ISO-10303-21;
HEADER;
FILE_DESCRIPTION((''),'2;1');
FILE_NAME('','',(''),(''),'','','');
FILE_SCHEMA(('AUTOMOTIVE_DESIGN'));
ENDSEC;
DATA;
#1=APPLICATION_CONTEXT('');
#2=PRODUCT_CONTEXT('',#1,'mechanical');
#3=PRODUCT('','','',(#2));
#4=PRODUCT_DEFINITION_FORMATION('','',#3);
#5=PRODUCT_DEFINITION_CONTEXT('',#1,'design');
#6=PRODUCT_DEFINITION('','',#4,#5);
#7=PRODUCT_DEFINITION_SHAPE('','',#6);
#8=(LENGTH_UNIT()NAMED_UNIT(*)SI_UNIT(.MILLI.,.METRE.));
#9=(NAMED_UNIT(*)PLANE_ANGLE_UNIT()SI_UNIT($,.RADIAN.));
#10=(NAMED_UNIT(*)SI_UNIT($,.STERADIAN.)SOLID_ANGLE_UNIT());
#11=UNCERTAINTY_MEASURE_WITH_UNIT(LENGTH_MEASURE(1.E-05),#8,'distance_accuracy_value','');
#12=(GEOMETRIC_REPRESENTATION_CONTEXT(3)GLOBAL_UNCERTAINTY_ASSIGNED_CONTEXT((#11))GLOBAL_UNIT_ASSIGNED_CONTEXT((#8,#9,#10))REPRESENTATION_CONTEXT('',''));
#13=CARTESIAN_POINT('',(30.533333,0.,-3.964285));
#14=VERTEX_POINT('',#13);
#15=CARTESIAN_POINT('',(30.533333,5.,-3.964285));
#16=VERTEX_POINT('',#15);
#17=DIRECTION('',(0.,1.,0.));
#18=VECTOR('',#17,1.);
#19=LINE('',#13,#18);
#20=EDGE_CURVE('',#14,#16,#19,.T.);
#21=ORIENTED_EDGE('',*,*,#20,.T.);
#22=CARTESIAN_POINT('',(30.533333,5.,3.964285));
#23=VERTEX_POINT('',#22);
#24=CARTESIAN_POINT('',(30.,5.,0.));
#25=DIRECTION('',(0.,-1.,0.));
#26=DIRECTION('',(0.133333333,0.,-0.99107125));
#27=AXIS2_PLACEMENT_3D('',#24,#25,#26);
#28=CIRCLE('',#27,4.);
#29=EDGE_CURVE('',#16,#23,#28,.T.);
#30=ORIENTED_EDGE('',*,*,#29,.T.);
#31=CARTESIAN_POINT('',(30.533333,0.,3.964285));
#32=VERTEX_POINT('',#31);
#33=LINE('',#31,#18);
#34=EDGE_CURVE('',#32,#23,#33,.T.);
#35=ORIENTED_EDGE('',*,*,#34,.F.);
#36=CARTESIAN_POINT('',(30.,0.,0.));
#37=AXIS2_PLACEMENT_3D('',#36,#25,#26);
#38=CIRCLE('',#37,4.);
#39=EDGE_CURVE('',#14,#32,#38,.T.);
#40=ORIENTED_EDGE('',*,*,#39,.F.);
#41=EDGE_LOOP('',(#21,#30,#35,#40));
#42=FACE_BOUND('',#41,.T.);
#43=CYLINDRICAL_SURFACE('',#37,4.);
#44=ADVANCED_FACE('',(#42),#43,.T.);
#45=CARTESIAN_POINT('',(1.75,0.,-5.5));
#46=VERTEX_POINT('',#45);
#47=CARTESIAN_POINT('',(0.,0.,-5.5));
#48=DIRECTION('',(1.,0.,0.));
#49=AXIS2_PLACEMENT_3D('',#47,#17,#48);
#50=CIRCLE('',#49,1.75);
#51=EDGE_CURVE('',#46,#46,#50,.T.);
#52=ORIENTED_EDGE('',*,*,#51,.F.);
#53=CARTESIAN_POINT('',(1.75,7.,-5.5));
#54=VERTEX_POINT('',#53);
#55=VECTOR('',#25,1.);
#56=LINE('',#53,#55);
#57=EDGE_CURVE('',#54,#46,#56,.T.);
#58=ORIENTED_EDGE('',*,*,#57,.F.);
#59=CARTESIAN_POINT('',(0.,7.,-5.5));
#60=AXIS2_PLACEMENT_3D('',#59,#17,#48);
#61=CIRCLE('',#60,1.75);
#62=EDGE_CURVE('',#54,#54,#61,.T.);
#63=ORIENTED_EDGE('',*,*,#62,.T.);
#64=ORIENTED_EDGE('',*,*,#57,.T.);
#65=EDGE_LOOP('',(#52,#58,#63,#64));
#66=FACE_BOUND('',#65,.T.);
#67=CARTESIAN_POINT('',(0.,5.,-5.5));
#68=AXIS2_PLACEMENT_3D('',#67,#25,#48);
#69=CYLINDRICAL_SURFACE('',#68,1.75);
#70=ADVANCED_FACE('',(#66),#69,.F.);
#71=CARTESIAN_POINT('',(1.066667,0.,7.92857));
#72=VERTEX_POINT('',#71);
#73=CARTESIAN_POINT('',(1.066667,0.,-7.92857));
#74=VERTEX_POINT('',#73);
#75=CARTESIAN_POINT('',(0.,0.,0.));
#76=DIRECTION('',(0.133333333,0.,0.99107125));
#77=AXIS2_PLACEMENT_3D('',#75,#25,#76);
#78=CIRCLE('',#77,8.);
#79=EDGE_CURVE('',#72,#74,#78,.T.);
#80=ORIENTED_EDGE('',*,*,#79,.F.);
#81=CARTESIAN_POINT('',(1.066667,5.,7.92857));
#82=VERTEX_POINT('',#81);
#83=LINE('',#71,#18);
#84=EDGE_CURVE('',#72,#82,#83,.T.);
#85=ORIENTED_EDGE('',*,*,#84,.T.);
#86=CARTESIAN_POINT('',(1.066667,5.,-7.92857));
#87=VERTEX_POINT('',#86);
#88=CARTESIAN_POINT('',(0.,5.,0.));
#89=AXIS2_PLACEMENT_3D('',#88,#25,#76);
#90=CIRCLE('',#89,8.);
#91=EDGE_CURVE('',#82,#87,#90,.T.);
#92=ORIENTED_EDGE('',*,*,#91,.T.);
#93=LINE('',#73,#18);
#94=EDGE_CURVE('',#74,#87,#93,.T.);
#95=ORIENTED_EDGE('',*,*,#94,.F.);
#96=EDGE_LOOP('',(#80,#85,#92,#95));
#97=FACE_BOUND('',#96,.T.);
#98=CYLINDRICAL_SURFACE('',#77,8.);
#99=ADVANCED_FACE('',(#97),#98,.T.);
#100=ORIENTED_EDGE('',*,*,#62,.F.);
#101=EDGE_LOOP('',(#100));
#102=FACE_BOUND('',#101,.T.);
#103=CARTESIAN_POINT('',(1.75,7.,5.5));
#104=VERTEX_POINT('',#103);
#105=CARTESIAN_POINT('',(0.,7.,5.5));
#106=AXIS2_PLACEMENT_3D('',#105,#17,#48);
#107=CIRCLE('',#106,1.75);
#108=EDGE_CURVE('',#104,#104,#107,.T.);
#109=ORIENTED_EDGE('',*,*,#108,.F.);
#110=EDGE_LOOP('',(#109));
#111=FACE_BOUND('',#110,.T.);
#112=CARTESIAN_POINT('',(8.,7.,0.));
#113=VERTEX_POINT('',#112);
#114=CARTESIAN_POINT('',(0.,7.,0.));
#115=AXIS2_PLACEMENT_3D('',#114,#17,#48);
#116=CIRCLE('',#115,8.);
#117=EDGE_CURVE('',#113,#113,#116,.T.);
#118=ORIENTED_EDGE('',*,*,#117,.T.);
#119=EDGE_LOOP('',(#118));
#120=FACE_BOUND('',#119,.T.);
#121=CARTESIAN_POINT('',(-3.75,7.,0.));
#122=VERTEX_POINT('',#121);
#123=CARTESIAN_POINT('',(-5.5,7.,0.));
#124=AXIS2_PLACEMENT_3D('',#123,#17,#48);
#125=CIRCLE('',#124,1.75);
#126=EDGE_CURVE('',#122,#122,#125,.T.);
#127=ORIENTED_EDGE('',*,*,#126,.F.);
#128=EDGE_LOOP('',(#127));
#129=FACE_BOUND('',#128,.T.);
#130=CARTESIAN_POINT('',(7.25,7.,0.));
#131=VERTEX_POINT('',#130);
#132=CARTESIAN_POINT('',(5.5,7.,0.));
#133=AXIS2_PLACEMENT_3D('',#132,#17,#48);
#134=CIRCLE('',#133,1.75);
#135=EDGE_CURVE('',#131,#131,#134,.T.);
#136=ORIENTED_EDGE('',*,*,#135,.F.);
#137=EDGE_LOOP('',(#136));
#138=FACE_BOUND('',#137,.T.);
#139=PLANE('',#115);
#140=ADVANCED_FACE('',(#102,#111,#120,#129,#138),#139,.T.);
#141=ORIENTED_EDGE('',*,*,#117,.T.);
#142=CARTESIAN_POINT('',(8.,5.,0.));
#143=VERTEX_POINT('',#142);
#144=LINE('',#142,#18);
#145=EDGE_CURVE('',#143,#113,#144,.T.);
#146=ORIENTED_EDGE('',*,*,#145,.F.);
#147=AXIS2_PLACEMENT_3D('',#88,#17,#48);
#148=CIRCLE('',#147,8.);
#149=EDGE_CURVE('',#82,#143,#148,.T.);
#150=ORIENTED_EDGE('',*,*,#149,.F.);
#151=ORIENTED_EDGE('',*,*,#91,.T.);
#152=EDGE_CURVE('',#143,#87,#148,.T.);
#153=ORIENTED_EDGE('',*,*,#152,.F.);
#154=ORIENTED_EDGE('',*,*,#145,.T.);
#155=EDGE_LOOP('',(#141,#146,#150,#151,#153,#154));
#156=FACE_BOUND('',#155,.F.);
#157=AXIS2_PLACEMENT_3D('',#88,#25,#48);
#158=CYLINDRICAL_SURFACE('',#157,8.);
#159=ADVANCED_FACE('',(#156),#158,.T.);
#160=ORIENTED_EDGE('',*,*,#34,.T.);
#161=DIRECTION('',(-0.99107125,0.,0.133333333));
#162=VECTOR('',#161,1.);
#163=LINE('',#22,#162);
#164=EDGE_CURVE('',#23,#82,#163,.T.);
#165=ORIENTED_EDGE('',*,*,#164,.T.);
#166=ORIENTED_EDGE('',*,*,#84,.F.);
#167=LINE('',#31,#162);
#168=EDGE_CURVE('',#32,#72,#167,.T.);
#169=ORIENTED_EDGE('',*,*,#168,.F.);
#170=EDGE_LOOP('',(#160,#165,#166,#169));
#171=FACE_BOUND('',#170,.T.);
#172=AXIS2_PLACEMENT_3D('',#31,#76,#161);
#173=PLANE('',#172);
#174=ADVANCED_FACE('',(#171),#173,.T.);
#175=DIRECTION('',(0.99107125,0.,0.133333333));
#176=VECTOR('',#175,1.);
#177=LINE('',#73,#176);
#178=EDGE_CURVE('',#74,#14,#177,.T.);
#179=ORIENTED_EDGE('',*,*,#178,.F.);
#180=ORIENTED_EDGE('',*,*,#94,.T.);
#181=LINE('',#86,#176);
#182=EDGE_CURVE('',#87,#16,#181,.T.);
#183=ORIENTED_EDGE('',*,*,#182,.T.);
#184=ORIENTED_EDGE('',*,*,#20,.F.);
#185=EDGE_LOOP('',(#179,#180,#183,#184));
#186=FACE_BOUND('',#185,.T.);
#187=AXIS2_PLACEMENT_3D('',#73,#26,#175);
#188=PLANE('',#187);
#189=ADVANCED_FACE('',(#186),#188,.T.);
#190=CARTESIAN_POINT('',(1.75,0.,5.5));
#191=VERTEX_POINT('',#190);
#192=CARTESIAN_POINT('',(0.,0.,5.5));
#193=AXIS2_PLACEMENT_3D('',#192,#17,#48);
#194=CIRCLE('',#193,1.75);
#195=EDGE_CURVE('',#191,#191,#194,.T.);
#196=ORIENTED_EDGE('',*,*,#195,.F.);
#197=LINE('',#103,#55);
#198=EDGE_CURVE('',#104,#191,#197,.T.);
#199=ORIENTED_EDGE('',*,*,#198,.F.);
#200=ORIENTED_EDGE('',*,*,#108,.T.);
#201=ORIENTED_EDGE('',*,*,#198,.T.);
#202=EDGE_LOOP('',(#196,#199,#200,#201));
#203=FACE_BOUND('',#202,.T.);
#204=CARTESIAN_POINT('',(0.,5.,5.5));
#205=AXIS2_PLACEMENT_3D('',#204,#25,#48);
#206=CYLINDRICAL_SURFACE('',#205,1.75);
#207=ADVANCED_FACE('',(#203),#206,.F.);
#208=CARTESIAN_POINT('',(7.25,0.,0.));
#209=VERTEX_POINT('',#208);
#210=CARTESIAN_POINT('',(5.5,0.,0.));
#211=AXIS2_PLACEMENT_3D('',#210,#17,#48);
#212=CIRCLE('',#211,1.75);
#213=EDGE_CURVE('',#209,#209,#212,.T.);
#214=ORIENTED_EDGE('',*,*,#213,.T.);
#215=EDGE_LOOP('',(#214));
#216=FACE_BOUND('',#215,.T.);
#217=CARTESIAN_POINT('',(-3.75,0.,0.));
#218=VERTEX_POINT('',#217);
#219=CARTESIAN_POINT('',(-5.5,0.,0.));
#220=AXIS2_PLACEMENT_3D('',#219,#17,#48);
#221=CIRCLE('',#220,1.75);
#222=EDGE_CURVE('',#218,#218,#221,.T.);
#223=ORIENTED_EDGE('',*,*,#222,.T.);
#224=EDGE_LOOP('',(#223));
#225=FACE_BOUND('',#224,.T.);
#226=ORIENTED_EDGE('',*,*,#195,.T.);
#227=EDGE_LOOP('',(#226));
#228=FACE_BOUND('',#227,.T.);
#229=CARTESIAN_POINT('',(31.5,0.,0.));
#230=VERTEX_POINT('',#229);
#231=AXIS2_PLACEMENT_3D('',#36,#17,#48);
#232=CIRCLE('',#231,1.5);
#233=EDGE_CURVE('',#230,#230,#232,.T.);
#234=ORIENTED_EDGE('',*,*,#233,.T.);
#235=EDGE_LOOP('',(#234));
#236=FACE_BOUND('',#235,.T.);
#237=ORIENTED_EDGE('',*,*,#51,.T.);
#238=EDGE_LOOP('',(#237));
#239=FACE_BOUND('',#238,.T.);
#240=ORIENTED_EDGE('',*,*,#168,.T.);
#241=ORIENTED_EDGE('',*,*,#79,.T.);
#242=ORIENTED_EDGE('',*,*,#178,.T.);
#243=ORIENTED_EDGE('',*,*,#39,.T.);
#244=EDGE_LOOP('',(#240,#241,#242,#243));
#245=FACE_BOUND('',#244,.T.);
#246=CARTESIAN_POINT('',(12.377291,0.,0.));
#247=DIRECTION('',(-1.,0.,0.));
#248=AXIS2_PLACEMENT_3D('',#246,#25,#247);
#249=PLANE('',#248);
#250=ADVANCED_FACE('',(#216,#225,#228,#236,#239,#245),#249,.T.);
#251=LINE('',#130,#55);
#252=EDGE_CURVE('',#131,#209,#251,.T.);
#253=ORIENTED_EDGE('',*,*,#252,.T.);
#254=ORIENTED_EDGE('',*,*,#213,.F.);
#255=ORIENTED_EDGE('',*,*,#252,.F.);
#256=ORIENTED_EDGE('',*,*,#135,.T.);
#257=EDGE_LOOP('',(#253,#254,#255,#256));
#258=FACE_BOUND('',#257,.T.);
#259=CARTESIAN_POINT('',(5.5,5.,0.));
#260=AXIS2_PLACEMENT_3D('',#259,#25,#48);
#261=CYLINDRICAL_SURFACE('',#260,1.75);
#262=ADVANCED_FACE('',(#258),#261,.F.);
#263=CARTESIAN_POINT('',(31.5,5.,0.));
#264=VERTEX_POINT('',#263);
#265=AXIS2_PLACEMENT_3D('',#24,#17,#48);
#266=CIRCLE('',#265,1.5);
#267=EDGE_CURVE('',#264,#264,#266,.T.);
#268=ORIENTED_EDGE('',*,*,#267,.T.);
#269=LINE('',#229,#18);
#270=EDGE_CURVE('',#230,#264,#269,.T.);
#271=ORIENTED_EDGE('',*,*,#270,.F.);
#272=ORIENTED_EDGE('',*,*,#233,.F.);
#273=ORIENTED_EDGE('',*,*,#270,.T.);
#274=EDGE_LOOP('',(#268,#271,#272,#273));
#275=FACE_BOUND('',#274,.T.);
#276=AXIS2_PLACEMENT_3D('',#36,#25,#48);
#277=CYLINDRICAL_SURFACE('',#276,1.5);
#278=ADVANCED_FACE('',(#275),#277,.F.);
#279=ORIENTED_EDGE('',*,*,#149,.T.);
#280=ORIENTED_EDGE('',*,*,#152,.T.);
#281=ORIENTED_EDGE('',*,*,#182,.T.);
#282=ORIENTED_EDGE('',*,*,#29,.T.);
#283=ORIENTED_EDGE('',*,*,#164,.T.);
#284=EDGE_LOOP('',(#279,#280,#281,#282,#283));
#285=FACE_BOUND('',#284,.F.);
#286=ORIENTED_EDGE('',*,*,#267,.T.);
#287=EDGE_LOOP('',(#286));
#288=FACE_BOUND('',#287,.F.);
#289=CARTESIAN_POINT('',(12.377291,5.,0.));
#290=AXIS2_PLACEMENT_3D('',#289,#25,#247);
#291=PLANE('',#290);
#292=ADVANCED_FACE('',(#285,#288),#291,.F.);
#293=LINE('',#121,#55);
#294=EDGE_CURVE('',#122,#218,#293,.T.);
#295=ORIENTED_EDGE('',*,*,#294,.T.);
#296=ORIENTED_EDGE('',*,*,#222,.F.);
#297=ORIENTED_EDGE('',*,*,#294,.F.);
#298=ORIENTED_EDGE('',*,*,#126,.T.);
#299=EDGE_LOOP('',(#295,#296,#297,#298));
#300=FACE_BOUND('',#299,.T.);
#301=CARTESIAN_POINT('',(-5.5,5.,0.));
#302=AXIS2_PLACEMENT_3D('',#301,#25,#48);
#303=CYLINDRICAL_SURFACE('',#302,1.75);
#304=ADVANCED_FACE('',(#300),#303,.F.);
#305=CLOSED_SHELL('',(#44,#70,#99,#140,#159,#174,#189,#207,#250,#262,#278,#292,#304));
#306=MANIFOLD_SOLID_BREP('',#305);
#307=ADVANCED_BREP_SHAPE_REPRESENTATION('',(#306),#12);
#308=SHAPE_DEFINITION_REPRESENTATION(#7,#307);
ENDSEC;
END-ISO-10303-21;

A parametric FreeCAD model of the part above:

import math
import FreeCAD as App
import Part
import Sketcher

V = App.Vector
Q = App.Units.Quantity

doc = App.newDocument("Part")
body = doc.addObject("PartDesign::Body", "Body")

# Sketch on XZ plane
sketch1 = body.newObject("Sketcher::SketchObject", "Sketch")
sketch1.AttachmentSupport = (doc.getObject("XZ_Plane"), [""])
sketch1.MapMode = "FlatFace"
sketch1.addGeometry([
    Part.LineSegment(V(30.5, -4, 0), V(1.1, -7.9, 0)),  # 0
    Part.ArcOfCircle(Part.Circle(V(0, 0, 0), V(0, 0, 1), 8), math.radians(82), math.radians(278)),  # 1
    Part.LineSegment(V(1.1, 7.9, 0), V(30.5, 4, 0)),  # 2
    Part.ArcOfCircle(Part.Circle(V(30, 0, 0), V(0, 0, 1), 4), math.radians(-82), math.radians(82)),  # 3
    Part.Circle(V(0, 5.5, 0), V(0, 0, 1), 1.8),  # 4
    Part.Circle(V(30, 0, 0), V(0, 0, 1), 1.5),  # 5
    Part.Circle(V(5.5, 0, 0), V(0, 0, 1), 1.8),  # 6
    Part.Circle(V(-5.5, 0, 0), V(0, 0, 1), 1.8),  # 7
    Part.Circle(V(0, -5.5, 0), V(0, 0, 1), 1.8),  # 8
], False)
sketch1.addConstraint([
    Sketcher.Constraint("Tangent", 0, 2, 1, 2),
    Sketcher.Constraint("Tangent", 1, 1, 2, 1),
    Sketcher.Constraint("Tangent", 2, 2, 3, 2),
    Sketcher.Constraint("Tangent", 3, 1, 0, 1),
    Sketcher.Constraint("Coincident", 1, 3, -1, 1),
    Sketcher.Constraint("Coincident", 5, 3, 3, 3),
    Sketcher.Constraint("Equal", 4, 6),
    Sketcher.Constraint("Equal", 6, 7),
    Sketcher.Constraint("Equal", 7, 8),
    Sketcher.Constraint("Symmetric", 6, 3, 7, 3, -1, 1),
    Sketcher.Constraint("Symmetric", 4, 3, 8, 3, -1, 1),
    Sketcher.Constraint("PointOnObject", 3, 3, -1),
    Sketcher.Constraint("PointOnObject", 4, 3, -2),
    Sketcher.Constraint("PointOnObject", 6, 3, -1),
    Sketcher.Constraint("Diameter", 5, Q("3 mm")),
    Sketcher.Constraint("Radius", 1, Q("8 mm")),
    Sketcher.Constraint("Radius", 3, Q("4 mm")),
    Sketcher.Constraint("Diameter", 4, Q("3.5 mm")),
    Sketcher.Constraint("DistanceX", -1, 1, 3, 3, Q("30 mm")),
    Sketcher.Constraint("DistanceX", 7, 3, 6, 3, Q("11 mm")),
    Sketcher.Constraint("DistanceY", 8, 3, 4, 3, Q("11 mm")),
])
pad1 = body.newObject("PartDesign::Pad", "Pad")
pad1.Profile = sketch1
pad1.Length = 5
pad1.Reversed = True

# Sketch on XZ plane
sketch2 = body.newObject("Sketcher::SketchObject", "Sketch001")
sketch2.AttachmentSupport = (doc.getObject("XZ_Plane"), [""])
sketch2.MapMode = "FlatFace"
sketch2.AttachmentOffset = App.Placement(V(0, 0, -5), App.Rotation())
sketch2.addGeometry([
    Part.Circle(V(0, 0, 0), V(0, 0, 1), 8),  # 0
    Part.Circle(V(0, 5.5, 0), V(0, 0, 1), 1.8),  # 1
    Part.Circle(V(-5.5, 0, 0), V(0, 0, 1), 1.8),  # 2
    Part.Circle(V(5.5, 0, 0), V(0, 0, 1), 1.8),  # 3
    Part.Circle(V(0, -5.5, 0), V(0, 0, 1), 1.8),  # 4
], False)
sketch2.addConstraint([
    Sketcher.Constraint("Coincident", 0, 3, -1, 1),
    Sketcher.Constraint("Equal", 1, 2),
    Sketcher.Constraint("Equal", 2, 3),
    Sketcher.Constraint("Equal", 3, 4),
    Sketcher.Constraint("Symmetric", 2, 3, 3, 3, -1, 1),
    Sketcher.Constraint("Symmetric", 1, 3, 4, 3, -1, 1),
    Sketcher.Constraint("PointOnObject", 1, 3, -2),
    Sketcher.Constraint("PointOnObject", 2, 3, -1),
    Sketcher.Constraint("Diameter", 0, Q("16 mm")),
    Sketcher.Constraint("Diameter", 1, Q("3.5 mm")),
    Sketcher.Constraint("DistanceX", 2, 3, 3, 3, Q("11 mm")),
    Sketcher.Constraint("DistanceY", 4, 3, 1, 3, Q("11 mm")),
])
pad2 = body.newObject("PartDesign::Pad", "Pad001")
pad2.Profile = sketch2
pad2.Length = 2
pad2.Reversed = True

doc.recompute()
